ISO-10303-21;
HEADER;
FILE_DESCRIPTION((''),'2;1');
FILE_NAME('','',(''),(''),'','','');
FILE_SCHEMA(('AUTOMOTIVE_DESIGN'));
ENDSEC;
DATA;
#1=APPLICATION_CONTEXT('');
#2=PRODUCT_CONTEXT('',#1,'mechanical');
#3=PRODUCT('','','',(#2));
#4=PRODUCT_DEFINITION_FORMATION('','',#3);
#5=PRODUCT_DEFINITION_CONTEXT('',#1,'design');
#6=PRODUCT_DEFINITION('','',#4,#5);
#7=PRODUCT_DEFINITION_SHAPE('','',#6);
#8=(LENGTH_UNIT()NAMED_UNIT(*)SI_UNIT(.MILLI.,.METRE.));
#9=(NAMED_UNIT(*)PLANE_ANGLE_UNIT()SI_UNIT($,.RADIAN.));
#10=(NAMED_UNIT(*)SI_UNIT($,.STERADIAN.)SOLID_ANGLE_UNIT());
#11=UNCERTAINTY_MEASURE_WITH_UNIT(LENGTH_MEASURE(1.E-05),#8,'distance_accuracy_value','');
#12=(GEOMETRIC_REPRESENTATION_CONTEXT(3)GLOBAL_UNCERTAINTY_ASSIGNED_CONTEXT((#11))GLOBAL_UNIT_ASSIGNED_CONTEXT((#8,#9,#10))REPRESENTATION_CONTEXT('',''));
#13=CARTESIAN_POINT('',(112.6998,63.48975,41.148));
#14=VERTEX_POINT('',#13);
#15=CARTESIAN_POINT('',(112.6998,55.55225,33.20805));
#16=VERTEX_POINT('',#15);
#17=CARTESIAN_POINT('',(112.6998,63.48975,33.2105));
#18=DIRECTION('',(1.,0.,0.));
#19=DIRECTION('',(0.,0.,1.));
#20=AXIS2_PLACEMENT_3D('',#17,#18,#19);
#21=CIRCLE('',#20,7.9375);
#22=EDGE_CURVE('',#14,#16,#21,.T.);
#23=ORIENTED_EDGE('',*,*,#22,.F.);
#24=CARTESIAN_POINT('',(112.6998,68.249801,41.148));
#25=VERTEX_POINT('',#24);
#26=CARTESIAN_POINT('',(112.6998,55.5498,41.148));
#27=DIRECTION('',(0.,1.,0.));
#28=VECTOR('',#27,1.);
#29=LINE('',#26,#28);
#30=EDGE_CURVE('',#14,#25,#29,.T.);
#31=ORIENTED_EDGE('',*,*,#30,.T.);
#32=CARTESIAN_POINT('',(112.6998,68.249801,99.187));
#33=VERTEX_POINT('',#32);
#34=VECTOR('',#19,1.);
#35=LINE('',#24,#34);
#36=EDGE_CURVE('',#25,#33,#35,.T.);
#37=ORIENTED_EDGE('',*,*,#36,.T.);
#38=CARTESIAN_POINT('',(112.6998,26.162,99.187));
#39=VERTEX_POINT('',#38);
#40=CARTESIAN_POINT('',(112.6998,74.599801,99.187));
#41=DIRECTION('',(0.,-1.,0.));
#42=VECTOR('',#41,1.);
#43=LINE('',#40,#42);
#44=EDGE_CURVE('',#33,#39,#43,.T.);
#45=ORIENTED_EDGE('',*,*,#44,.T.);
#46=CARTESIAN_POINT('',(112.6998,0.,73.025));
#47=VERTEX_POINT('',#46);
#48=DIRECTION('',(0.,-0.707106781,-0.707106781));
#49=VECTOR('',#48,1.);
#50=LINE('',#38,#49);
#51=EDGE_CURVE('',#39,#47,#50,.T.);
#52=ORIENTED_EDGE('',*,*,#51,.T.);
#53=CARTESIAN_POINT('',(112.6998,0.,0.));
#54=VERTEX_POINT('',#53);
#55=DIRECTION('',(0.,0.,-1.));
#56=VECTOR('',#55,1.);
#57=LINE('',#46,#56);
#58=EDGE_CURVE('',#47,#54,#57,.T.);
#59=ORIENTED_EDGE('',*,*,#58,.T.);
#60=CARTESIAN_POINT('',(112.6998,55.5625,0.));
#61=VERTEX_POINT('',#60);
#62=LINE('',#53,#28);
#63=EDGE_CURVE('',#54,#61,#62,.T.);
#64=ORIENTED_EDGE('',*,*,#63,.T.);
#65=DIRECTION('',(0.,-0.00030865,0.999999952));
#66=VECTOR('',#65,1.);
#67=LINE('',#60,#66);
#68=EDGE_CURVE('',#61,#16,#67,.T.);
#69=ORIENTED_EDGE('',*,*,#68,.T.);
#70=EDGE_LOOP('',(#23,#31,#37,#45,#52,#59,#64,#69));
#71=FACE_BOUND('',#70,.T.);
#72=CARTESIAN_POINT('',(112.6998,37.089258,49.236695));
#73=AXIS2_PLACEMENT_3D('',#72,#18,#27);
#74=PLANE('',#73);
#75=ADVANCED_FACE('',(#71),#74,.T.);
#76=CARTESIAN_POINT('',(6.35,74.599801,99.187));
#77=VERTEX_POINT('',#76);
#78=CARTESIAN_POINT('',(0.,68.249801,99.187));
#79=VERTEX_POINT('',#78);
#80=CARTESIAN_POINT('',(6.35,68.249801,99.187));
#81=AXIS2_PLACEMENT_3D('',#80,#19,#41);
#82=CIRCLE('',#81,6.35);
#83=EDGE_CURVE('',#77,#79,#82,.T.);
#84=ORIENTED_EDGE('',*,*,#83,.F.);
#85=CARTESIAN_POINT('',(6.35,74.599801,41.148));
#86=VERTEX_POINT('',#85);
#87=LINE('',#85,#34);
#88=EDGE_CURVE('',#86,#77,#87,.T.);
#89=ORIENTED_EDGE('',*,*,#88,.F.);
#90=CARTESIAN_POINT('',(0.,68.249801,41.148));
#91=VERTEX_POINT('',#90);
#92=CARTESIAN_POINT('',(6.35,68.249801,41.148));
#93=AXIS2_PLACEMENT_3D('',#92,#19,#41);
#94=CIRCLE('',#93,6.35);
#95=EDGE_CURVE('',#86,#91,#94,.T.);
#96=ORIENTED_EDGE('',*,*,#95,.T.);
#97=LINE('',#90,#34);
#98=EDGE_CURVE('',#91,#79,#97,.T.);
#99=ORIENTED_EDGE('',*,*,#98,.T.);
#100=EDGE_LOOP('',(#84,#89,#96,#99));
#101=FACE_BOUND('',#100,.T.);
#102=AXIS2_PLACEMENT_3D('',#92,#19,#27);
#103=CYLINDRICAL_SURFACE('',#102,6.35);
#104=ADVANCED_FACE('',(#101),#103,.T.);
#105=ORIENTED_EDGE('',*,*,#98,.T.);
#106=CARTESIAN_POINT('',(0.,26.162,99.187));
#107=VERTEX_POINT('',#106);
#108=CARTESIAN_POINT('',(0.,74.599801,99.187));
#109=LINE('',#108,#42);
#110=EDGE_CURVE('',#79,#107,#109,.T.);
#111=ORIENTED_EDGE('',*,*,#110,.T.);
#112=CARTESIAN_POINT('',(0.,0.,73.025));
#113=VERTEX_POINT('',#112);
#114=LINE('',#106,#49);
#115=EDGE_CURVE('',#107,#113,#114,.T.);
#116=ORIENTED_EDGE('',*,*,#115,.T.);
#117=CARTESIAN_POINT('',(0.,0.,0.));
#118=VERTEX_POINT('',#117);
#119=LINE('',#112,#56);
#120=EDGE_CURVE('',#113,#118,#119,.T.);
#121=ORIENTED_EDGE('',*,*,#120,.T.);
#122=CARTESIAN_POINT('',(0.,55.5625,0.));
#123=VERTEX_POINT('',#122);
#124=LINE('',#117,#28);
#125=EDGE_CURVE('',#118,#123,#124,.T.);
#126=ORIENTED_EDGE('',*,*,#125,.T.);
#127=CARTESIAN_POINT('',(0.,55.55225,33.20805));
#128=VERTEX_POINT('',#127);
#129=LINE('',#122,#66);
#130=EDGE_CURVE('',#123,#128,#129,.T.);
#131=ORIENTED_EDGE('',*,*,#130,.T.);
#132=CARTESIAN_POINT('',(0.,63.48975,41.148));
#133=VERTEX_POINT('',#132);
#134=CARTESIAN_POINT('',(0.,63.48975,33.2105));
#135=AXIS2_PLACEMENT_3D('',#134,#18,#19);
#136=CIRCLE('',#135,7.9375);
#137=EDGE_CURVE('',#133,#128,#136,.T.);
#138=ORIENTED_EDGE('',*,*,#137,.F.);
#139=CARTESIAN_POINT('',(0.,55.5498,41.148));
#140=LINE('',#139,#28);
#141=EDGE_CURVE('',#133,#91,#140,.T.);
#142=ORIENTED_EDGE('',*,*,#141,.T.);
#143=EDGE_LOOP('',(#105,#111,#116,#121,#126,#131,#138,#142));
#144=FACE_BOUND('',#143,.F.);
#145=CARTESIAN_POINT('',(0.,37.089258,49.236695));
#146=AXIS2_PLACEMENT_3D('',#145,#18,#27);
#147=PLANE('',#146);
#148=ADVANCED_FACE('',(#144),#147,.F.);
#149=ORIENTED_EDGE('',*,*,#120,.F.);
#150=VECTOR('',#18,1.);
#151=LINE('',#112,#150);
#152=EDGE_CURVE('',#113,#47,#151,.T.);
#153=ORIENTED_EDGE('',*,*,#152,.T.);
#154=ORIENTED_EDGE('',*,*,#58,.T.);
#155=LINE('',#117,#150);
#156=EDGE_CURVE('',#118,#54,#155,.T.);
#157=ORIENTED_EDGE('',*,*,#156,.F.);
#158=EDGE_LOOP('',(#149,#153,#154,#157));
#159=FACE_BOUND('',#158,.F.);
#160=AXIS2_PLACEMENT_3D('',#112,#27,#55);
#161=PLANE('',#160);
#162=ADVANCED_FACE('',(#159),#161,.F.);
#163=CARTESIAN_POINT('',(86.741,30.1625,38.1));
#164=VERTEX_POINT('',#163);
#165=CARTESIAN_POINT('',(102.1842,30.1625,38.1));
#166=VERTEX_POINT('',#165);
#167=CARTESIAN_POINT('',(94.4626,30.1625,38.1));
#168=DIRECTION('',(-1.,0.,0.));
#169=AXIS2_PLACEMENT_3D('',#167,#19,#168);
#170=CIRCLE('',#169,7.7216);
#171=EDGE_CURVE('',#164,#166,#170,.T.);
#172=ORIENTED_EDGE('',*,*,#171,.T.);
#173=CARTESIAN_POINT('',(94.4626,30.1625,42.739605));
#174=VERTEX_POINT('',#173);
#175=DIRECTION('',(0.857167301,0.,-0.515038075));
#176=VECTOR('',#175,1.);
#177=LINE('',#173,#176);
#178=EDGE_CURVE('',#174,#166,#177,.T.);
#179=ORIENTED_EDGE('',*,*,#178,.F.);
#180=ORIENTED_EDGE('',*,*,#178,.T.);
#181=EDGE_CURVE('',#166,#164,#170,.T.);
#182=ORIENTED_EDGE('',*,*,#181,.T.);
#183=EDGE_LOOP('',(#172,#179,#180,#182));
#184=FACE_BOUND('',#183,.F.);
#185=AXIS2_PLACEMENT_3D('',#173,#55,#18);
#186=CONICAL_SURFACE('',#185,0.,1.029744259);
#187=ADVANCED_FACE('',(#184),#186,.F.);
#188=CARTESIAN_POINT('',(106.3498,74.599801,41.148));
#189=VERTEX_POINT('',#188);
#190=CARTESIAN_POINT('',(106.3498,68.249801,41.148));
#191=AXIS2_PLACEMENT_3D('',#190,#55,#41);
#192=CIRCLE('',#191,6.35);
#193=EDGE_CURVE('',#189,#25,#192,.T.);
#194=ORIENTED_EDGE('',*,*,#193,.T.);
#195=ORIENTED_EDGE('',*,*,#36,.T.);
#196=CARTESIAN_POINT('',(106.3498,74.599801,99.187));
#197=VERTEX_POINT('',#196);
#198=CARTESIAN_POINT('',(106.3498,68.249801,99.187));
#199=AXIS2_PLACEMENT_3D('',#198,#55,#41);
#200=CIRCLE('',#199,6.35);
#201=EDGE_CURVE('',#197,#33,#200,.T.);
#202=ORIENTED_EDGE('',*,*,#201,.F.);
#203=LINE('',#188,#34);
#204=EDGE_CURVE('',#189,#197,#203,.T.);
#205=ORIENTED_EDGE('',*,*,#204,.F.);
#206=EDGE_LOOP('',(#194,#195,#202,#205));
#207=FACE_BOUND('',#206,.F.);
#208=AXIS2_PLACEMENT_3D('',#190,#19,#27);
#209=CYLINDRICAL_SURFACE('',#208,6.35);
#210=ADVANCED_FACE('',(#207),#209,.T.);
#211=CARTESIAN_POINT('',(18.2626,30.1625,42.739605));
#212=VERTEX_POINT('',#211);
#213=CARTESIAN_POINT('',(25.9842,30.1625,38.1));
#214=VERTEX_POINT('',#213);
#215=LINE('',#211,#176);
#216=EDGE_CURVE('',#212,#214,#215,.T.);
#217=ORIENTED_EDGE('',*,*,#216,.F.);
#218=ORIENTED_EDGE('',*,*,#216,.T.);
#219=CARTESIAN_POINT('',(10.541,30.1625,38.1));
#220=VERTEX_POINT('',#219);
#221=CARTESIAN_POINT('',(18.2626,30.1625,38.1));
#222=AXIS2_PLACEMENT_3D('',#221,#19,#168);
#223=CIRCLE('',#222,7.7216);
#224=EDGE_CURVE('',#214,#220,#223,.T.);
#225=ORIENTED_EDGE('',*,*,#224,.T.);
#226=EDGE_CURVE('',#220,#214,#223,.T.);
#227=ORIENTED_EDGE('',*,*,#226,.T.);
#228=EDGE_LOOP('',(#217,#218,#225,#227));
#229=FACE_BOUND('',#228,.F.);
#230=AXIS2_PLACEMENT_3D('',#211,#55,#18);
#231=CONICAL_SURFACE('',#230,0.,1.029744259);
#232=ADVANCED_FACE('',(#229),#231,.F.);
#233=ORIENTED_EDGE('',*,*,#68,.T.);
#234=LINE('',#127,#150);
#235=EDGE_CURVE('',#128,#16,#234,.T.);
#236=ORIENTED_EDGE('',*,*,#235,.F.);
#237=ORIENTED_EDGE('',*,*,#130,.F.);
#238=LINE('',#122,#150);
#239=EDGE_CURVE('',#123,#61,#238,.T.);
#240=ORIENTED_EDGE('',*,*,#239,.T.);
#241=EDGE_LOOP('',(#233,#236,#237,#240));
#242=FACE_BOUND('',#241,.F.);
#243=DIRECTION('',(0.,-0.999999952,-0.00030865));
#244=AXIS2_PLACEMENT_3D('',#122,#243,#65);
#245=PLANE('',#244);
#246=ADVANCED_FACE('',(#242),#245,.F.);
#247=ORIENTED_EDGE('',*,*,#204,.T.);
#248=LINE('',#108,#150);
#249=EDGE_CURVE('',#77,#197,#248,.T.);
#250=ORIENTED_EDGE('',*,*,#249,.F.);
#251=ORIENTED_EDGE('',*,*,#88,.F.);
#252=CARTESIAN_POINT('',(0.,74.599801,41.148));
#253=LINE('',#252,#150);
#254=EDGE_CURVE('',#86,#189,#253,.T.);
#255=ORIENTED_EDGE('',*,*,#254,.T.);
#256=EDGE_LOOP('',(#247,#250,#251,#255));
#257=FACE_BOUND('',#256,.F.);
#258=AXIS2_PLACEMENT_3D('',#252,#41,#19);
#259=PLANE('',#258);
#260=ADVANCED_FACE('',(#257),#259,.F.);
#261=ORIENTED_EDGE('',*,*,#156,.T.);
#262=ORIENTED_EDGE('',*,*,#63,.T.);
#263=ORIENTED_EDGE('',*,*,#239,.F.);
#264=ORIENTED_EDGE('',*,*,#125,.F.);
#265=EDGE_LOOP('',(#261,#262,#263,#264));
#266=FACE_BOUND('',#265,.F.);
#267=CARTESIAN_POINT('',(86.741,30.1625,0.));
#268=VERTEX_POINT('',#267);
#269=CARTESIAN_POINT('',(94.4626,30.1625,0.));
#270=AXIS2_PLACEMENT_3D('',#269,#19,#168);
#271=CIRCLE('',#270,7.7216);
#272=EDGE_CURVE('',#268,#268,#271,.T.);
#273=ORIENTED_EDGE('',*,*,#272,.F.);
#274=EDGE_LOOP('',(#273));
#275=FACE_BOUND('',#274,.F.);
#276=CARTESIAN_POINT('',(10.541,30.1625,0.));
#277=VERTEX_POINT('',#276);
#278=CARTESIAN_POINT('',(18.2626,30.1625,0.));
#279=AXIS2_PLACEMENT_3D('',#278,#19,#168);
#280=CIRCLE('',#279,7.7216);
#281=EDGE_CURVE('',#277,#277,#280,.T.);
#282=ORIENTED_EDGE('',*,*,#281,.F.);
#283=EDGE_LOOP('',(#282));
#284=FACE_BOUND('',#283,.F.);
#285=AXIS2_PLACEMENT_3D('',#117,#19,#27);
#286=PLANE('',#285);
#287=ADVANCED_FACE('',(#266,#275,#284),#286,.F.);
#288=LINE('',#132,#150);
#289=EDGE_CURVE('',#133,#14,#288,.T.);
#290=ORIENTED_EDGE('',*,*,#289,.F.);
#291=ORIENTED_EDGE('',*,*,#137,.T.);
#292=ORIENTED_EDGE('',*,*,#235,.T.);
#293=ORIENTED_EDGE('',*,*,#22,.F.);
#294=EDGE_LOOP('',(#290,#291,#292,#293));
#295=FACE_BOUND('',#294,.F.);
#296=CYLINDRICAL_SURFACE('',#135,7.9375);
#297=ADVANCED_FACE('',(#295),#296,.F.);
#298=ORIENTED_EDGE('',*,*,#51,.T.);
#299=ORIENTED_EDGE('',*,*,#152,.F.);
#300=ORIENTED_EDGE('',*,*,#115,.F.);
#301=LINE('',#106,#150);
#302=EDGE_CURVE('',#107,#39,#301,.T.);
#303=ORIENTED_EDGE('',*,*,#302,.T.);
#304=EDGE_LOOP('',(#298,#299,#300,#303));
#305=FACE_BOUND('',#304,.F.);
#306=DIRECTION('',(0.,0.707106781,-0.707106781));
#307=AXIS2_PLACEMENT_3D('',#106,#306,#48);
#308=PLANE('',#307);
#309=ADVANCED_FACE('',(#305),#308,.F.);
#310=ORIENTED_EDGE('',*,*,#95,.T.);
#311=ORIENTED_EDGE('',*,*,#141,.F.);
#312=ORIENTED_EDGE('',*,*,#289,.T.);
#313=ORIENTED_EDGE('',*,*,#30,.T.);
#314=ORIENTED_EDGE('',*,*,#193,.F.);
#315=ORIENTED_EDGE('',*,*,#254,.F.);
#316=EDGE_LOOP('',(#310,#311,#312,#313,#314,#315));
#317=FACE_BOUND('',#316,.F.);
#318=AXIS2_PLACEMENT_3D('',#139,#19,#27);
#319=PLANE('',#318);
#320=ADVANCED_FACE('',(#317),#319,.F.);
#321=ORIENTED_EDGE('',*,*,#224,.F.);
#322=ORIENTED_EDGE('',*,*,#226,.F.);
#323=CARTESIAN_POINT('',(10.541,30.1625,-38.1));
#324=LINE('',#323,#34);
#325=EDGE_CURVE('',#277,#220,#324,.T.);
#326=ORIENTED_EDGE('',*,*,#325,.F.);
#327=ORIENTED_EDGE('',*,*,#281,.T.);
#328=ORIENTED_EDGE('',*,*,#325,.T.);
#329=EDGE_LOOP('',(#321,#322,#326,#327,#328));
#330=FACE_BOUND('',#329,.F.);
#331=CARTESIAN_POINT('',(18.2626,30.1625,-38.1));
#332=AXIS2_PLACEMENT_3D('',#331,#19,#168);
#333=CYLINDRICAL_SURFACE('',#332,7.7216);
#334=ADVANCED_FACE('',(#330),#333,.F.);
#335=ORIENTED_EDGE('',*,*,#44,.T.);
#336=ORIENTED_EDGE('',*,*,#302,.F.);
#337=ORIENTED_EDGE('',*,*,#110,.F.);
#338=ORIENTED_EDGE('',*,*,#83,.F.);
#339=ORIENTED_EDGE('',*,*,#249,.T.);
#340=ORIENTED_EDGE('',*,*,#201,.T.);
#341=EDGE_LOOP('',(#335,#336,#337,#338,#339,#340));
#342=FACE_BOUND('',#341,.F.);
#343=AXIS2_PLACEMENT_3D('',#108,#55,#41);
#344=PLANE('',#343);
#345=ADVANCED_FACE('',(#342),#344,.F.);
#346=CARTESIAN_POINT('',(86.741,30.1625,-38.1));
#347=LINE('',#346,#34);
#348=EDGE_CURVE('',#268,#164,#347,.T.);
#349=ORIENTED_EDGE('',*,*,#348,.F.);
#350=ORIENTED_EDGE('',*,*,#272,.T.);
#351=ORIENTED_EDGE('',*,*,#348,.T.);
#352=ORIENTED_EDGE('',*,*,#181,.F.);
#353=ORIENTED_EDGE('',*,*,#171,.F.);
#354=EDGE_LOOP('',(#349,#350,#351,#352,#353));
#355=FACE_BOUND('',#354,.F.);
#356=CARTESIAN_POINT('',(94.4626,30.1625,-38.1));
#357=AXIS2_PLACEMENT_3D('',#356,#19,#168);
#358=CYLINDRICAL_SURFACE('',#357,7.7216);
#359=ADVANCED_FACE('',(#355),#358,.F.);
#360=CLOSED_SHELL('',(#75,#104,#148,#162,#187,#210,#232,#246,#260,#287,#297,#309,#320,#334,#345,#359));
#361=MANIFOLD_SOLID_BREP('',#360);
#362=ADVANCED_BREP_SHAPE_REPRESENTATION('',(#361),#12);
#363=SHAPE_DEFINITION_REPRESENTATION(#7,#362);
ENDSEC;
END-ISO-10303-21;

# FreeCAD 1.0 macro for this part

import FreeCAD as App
import Part
import Sketcher

V = App.Vector
Q = App.Units.Quantity


def edges_at(feature, points):
    """Names of the edges that pass closest to the given points."""
    edges = feature.Shape.Edges
    near = lambda p: min(range(len(edges)), key=lambda i: edges[i].distToShape(Part.Vertex(*p))[0])
    return sorted({f"Edge{near(p) + 1}" for p in points})

doc = App.newDocument("Part")
body = doc.addObject("PartDesign::Body", "Body")

sketch1 = body.newObject("Sketcher::SketchObject", "Sketch")
sketch1.AttachmentSupport = (doc.getObject("YZ_Plane"), [""])
sketch1.MapMode = "FlatFace"
sketch1.addGeometry([
    Part.LineSegment(V(75, 99, 0), V(26, 99, 0)),
    Part.LineSegment(V(26, 99, 0), V(0, 73, 0)),
    Part.LineSegment(V(0, 73, 0), V(0, 0, 0)),
    Part.LineSegment(V(0, 0, 0), V(56, 0, 0)),
    Part.LineSegment(V(56, 0, 0), V(56, 41, 0)),
    Part.LineSegment(V(56, 41, 0), V(75, 41, 0)),
    Part.LineSegment(V(75, 41, 0), V(75, 99, 0)),
], False)
sketch1.addConstraint([
    Sketcher.Constraint("Coincident", 0, 2, 1, 1),
    Sketcher.Constraint("Coincident", 1, 2, 2, 1),
    Sketcher.Constraint("Coincident", 2, 2, 3, 1),
    Sketcher.Constraint("Coincident", 3, 2, 4, 1),
    Sketcher.Constraint("Coincident", 4, 2, 5, 1),
    Sketcher.Constraint("Coincident", 5, 2, 6, 1),
    Sketcher.Constraint("Coincident", 6, 2, 0, 1),
    Sketcher.Constraint("Horizontal", 0),
    Sketcher.Constraint("Vertical", 2),
    Sketcher.Constraint("Horizontal", 3),
    Sketcher.Constraint("Horizontal", 5),
    Sketcher.Constraint("Vertical", 6),
    Sketcher.Constraint("Coincident", 2, 2, -1, 1),
    Sketcher.Constraint("Angle", 1, Q("-135 deg")),
    Sketcher.Constraint("DistanceX", 5, 1, 5, 2, Q("0.75 in")),
    Sketcher.Constraint("Distance", 4, Q("1.6200001 in")),
    Sketcher.Constraint("DistanceX", 0, 2, 0, 1, Q("1.907 in")),
    Sketcher.Constraint("DistanceX", 3, 1, 3, 2, Q("2.1875 in")),
    Sketcher.Constraint("DistanceY", 2, 2, 2, 1, Q("2.875 in")),
    Sketcher.Constraint("DistanceY", 6, 1, 6, 2, Q("2.285 in")),
])
pad1 = body.newObject("PartDesign::Pad", "Pad")
pad1.Profile = sketch1
pad1.Length = Q("4.437 in")

sketch2 = body.newObject("Sketcher::SketchObject", "Sketch001")
sketch2.AttachmentSupport = (doc.getObject("XY_Plane"), [""])
sketch2.MapMode = "FlatFace"
sketch2.addGeometry([
    Part.Circle(V(94, 30, 0), V(0, 0, 1), 8),
    Part.Circle(V(18, 30, 0), V(0, 0, 1), 8),
], False)
sketch2.addConstraint([
    Sketcher.Constraint("Equal", 0, 1),
    Sketcher.Constraint("Horizontal", 0, 3, 1, 3),
    Sketcher.Constraint("Diameter", 0, Q("0.608 in")),
    Sketcher.Constraint("DistanceX", 1, 3, 0, 3, Q("3 in")),
    Sketcher.Constraint("DistanceX", -1, 1, 0, 3, Q("3.719 in")),
    Sketcher.Constraint("DistanceY", -1, 1, 0, 3, Q("1.1875 in")),
])
doc.recompute()
hole = body.newObject("PartDesign::Hole", "Hole")
hole.Profile = sketch2
hole.ThreadType = "None"
hole.Diameter = Q("0.608 in")
hole.DepthType = "Dimension"
hole.Depth = Q("1.5 in")
hole.DrillPoint = "Angled"
hole.DrillPointAngle = 118
hole.Reversed = True
doc.recompute()

fillet = body.newObject("PartDesign::Fillet", "Fillet")
fillet.Base = (hole, edges_at(hole, [(112.7, 74.6, 70.168), (0, 74.6, 70.168)]))
fillet.Radius = Q("0.25 in")
doc.recompute()

fillet2 = body.newObject("PartDesign::Fillet", "Fillet001")
fillet2.Base = (fillet, edges_at(fillet, [(56.35, 55.55, 41.148)]))
fillet2.Radius = Q("0.3125 in")

doc.recompute()
